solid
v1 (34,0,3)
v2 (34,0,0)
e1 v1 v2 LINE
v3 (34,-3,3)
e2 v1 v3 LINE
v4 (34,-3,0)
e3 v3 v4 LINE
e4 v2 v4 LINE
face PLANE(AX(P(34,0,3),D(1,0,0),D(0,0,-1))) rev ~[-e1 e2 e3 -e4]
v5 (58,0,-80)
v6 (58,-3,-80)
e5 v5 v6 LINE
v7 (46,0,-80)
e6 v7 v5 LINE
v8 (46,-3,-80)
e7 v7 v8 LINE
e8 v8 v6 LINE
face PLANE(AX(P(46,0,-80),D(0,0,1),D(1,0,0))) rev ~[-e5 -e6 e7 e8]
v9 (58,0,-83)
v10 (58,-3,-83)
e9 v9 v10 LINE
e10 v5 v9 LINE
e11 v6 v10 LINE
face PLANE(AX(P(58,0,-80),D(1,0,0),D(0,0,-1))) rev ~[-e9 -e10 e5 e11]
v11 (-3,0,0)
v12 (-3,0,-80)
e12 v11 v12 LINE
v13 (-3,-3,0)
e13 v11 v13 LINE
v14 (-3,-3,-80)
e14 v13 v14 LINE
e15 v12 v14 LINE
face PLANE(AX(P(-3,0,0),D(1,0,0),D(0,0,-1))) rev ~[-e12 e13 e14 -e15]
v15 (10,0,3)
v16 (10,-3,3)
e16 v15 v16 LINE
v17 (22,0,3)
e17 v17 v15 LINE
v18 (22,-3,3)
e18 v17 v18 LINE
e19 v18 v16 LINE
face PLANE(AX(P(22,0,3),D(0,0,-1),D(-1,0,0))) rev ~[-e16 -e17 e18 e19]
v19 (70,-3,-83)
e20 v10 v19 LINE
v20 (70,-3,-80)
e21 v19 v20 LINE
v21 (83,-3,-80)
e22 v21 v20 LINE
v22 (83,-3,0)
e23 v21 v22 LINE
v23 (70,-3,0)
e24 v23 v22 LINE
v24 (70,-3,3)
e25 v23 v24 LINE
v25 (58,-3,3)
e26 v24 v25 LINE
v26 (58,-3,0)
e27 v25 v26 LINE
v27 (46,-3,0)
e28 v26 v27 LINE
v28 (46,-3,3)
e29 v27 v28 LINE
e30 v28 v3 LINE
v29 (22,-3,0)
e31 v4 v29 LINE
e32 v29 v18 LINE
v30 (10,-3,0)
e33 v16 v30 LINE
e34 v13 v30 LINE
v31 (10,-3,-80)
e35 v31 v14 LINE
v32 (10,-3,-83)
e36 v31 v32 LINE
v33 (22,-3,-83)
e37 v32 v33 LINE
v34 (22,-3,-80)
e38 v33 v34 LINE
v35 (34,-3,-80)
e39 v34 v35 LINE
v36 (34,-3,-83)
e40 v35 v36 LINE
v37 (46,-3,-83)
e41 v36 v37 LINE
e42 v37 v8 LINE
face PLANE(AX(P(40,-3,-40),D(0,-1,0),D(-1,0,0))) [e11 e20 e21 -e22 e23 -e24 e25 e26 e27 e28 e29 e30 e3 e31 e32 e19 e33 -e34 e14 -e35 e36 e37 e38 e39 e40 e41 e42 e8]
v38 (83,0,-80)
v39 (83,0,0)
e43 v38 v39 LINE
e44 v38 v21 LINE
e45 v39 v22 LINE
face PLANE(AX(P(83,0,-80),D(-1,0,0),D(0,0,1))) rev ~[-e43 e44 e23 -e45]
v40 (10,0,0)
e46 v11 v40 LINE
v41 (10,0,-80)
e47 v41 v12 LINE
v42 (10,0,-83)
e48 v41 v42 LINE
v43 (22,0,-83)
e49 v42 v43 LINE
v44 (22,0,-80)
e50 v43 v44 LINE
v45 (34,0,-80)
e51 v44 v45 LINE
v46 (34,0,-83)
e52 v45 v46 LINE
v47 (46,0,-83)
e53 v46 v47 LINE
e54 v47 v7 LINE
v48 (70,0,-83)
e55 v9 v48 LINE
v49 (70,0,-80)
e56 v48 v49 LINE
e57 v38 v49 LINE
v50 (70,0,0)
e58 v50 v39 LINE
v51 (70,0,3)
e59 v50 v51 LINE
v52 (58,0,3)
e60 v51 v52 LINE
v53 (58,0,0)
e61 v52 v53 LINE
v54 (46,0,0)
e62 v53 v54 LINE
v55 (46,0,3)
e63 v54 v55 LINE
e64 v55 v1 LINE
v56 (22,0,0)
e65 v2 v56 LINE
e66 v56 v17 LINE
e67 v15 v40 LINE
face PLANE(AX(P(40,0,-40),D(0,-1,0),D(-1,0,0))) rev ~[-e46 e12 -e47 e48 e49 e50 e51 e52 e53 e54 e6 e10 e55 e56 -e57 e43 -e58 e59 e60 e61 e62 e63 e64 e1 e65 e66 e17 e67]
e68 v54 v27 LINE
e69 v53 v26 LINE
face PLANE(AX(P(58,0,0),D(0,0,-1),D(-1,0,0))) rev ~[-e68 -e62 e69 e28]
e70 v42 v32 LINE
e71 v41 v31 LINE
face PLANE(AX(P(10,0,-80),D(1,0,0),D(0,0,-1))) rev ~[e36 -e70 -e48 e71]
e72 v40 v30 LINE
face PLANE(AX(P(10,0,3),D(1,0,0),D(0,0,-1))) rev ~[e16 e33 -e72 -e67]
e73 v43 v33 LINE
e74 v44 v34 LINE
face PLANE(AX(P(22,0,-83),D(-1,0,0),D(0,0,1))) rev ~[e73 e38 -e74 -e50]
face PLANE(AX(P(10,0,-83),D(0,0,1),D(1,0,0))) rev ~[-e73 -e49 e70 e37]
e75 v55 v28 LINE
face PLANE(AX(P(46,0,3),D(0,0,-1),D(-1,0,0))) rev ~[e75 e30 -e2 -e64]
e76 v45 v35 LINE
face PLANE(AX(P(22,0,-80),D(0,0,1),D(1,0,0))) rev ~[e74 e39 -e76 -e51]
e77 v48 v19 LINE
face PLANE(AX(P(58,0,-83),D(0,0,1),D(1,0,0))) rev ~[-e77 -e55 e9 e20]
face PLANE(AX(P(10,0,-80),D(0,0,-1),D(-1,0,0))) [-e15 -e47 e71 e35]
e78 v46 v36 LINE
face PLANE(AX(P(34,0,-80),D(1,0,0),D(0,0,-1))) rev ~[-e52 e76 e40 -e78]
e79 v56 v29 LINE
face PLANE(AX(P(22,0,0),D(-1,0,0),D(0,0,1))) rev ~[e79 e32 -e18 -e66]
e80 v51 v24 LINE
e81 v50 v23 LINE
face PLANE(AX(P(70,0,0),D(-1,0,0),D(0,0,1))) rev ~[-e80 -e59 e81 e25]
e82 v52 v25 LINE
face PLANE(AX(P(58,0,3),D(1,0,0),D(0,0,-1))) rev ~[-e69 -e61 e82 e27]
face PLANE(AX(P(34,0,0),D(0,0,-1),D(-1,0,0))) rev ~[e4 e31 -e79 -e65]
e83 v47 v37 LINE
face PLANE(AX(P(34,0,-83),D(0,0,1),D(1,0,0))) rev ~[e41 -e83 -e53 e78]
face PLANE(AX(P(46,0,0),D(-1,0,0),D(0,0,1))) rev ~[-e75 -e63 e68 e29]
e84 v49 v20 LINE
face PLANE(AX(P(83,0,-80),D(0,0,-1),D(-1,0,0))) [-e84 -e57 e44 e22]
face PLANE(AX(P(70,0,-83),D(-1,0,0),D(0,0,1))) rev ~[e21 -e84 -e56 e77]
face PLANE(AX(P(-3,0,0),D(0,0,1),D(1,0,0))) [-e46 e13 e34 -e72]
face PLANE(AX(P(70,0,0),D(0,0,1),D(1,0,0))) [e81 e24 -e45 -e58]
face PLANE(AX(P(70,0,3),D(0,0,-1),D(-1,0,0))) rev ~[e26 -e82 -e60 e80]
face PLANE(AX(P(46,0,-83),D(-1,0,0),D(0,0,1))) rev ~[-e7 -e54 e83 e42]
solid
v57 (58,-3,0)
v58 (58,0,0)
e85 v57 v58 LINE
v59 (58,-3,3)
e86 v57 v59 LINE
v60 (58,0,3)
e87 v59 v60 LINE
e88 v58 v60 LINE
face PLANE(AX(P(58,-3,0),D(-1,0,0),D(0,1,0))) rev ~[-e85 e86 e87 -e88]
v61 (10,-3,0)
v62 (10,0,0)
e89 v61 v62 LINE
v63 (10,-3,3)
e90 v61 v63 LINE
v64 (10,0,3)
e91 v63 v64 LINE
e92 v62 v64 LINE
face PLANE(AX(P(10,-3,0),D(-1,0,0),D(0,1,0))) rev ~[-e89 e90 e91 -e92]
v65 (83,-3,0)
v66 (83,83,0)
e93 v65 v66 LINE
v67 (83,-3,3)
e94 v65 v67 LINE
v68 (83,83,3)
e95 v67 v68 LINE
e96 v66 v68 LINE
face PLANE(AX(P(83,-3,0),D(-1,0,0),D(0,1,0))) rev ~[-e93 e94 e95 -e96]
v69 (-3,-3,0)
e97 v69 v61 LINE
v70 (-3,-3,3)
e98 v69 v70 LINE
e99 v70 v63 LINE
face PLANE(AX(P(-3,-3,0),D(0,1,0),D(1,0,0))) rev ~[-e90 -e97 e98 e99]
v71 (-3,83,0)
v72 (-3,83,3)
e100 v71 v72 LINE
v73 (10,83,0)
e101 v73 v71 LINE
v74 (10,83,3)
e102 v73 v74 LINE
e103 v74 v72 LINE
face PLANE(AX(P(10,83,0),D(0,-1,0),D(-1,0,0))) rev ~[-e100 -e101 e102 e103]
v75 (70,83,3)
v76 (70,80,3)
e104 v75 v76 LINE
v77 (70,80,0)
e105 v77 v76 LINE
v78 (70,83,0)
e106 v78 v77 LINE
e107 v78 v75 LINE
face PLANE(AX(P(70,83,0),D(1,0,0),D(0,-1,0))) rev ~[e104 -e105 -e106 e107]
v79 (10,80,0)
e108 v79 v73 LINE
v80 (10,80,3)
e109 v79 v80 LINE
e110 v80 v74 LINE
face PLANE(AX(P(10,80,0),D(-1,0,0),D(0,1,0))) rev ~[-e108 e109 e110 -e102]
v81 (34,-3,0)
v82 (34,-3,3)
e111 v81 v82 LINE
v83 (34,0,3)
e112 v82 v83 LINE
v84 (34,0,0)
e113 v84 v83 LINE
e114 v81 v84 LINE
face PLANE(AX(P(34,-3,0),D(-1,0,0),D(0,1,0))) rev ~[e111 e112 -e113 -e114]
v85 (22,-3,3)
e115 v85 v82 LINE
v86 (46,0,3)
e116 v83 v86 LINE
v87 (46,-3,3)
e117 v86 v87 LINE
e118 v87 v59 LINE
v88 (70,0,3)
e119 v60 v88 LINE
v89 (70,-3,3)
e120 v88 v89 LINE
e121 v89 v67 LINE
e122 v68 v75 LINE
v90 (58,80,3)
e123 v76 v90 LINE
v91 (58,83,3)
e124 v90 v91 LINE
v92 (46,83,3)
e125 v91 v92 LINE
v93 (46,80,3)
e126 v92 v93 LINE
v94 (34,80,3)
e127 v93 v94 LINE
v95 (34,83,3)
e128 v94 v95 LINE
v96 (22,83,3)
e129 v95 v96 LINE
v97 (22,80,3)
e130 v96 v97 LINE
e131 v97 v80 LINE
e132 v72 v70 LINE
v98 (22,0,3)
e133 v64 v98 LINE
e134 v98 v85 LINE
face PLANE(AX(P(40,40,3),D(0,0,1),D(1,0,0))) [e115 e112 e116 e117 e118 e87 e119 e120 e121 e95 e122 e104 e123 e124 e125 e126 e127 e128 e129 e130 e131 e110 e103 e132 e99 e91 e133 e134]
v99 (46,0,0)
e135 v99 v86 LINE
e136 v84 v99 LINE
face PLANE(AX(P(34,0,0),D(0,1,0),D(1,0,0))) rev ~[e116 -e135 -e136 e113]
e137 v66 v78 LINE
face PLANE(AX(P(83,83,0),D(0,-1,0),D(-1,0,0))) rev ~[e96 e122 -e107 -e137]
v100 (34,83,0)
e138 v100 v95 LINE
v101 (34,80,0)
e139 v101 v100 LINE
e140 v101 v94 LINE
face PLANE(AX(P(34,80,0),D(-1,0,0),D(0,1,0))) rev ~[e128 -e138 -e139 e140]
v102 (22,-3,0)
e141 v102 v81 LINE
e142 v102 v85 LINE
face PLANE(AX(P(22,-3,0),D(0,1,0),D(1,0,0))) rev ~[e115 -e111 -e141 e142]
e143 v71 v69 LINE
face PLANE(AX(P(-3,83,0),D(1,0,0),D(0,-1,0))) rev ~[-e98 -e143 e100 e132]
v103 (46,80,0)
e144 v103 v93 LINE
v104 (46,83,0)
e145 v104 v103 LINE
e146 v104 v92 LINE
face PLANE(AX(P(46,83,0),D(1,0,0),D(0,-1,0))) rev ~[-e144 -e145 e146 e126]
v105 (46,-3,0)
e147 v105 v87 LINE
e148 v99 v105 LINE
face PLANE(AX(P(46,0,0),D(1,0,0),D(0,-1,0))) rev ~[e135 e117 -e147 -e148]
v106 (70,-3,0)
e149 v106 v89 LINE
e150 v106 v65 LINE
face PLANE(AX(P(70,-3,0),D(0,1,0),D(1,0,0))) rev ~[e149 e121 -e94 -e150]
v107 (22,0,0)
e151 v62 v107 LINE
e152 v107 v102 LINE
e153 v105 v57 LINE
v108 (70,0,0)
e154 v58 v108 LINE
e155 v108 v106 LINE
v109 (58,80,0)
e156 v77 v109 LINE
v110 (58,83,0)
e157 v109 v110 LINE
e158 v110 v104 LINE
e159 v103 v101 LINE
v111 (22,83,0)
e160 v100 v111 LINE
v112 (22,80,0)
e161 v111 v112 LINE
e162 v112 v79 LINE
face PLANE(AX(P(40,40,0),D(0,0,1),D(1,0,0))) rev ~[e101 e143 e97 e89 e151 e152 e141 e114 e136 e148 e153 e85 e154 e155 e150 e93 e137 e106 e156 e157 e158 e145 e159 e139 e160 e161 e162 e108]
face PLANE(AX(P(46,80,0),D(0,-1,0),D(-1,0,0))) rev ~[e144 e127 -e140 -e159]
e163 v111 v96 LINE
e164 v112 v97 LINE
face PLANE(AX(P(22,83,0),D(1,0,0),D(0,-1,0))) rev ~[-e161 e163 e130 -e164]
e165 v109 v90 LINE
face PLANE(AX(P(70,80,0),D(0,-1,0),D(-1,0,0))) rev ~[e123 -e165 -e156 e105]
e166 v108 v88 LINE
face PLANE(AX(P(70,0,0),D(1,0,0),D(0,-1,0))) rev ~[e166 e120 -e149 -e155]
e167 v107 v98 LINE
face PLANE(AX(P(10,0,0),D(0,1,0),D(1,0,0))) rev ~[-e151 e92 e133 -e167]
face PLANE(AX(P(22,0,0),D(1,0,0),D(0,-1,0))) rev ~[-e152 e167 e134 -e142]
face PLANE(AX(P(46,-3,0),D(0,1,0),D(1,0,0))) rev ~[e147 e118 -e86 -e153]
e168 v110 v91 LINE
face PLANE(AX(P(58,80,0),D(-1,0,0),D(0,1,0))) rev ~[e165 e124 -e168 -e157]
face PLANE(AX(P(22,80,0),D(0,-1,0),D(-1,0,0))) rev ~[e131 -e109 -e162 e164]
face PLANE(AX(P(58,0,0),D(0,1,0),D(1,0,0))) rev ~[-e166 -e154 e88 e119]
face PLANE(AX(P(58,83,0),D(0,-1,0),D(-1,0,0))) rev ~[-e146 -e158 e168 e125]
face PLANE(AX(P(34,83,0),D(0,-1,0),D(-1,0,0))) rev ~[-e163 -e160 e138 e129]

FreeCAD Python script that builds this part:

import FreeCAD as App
import Part
import Sketcher
from FreeCAD import Vector
Q = App.Units.Quantity

doc = App.newDocument("Part")
body = doc.addObject("PartDesign::Body", "Body")

sketch1 = body.newObject("Sketcher::SketchObject", "Sketch")
sketch1.AttachmentSupport = (doc.getObject("XY_Plane"), [""])
sketch1.MapMode = "FlatFace"
sketch1.addGeometry([
    Part.LineSegment(Vector(10, 0, 0), Vector(22, 0, 0)),
    Part.LineSegment(Vector(22, 0, 0), Vector(22, -3, 0)),
    Part.LineSegment(Vector(22, -3, 0), Vector(34, -3, 0)),
    Part.LineSegment(Vector(34, -3, 0), Vector(34, 0, 0)),
    Part.LineSegment(Vector(34, 0, 0), Vector(46, 0, 0)),
    Part.LineSegment(Vector(46, 0, 0), Vector(46, -3, 0)),
    Part.LineSegment(Vector(46, -3, 0), Vector(58, -3, 0)),
    Part.LineSegment(Vector(58, -3, 0), Vector(58, 0, 0)),
    Part.LineSegment(Vector(58, 0, 0), Vector(70, 0, 0)),
    Part.LineSegment(Vector(70, 0, 0), Vector(70, -3, 0)),
    Part.LineSegment(Vector(70, -3, 0), Vector(83, -3, 0)),
    Part.LineSegment(Vector(83, -3, 0), Vector(83, 83, 0)),
    Part.LineSegment(Vector(83, 83, 0), Vector(70, 83, 0)),
    Part.LineSegment(Vector(70, 83, 0), Vector(70, 80, 0)),
    Part.LineSegment(Vector(70, 80, 0), Vector(58, 80, 0)),
    Part.LineSegment(Vector(58, 80, 0), Vector(58, 83, 0)),
    Part.LineSegment(Vector(58, 83, 0), Vector(46, 83, 0)),
    Part.LineSegment(Vector(46, 83, 0), Vector(46, 80, 0)),
    Part.LineSegment(Vector(46, 80, 0), Vector(34, 80, 0)),
    Part.LineSegment(Vector(34, 80, 0), Vector(34, 83, 0)),
    Part.LineSegment(Vector(34, 83, 0), Vector(22, 83, 0)),
    Part.LineSegment(Vector(22, 83, 0), Vector(22, 80, 0)),
    Part.LineSegment(Vector(22, 80, 0), Vector(10, 80, 0)),
    Part.LineSegment(Vector(10, 80, 0), Vector(10, 83, 0)),
    Part.LineSegment(Vector(10, 83, 0), Vector(-3, 83, 0)),
    Part.LineSegment(Vector(-3, 83, 0), Vector(-3, -3, 0)),
    Part.LineSegment(Vector(-3, -3, 0), Vector(10, -3, 0)),
    Part.LineSegment(Vector(10, -3, 0), Vector(10, 0, 0)),
], False)
sketch1.addConstraint([
    Sketcher.Constraint("Coincident", 0, 2, 1, 1),
    Sketcher.Constraint("Coincident", 1, 2, 2, 1),
    Sketcher.Constraint("Coincident", 2, 2, 3, 1),
    Sketcher.Constraint("Coincident", 3, 2, 4, 1),
    Sketcher.Constraint("Coincident", 4, 2, 5, 1),
    Sketcher.Constraint("Coincident", 5, 2, 6, 1),
    Sketcher.Constraint("Coincident", 6, 2, 7, 1),
    Sketcher.Constraint("Coincident", 7, 2, 8, 1),
    Sketcher.Constraint("Coincident", 8, 2, 9, 1),
    Sketcher.Constraint("Coincident", 9, 2, 10, 1),
    Sketcher.Constraint("Coincident", 10, 2, 11, 1),
    Sketcher.Constraint("Coincident", 11, 2, 12, 1),
    Sketcher.Constraint("Coincident", 12, 2, 13, 1),
    Sketcher.Constraint("Coincident", 13, 2, 14, 1),
    Sketcher.Constraint("Coincident", 14, 2, 15, 1),
    Sketcher.Constraint("Coincident", 15, 2, 16, 1),
    Sketcher.Constraint("Coincident", 16, 2, 17, 1),
    Sketcher.Constraint("Coincident", 17, 2, 18, 1),
    Sketcher.Constraint("Coincident", 18, 2, 19, 1),
    Sketcher.Constraint("Coincident", 19, 2, 20, 1),
    Sketcher.Constraint("Coincident", 20, 2, 21, 1),
    Sketcher.Constraint("Coincident", 21, 2, 22, 1),
    Sketcher.Constraint("Coincident", 22, 2, 23, 1),
    Sketcher.Constraint("Coincident", 23, 2, 24, 1),
    Sketcher.Constraint("Coincident", 24, 2, 25, 1),
    Sketcher.Constraint("Coincident", 25, 2, 26, 1),
    Sketcher.Constraint("Coincident", 26, 2, 27, 1),
    Sketcher.Constraint("Coincident", 27, 2, 0, 1),
    Sketcher.Constraint("Horizontal", 0),
    Sketcher.Constraint("Vertical", 1),
    Sketcher.Constraint("Horizontal", 2),
    Sketcher.Constraint("Vertical", 3),
    Sketcher.Constraint("Horizontal", 4),
    Sketcher.Constraint("Vertical", 5),
    Sketcher.Constraint("Horizontal", 6),
    Sketcher.Constraint("Vertical", 7),
    Sketcher.Constraint("Horizontal", 8),
    Sketcher.Constraint("Vertical", 9),
    Sketcher.Constraint("Horizontal", 10),
    Sketcher.Constraint("Vertical", 11),
    Sketcher.Constraint("Horizontal", 12),
    Sketcher.Constraint("Vertical", 13),
    Sketcher.Constraint("Horizontal", 14),
    Sketcher.Constraint("Vertical", 15),
    Sketcher.Constraint("Horizontal", 16),
    Sketcher.Constraint("Vertical", 17),
    Sketcher.Constraint("Horizontal", 18),
    Sketcher.Constraint("Vertical", 19),
    Sketcher.Constraint("Horizontal", 20),
    Sketcher.Constraint("Vertical", 21),
    Sketcher.Constraint("Horizontal", 22),
    Sketcher.Constraint("Vertical", 23),
    Sketcher.Constraint("Horizontal", 24),
    Sketcher.Constraint("Vertical", 25),
    Sketcher.Constraint("Horizontal", 26),
    Sketcher.Constraint("Vertical", 27),
    Sketcher.Constraint("PointOnObject", 0, 2, -1),
    Sketcher.Constraint("PointOnObject", 3, 2, -1),
    Sketcher.Constraint("PointOnObject", 7, 2, -1),
    Sketcher.Constraint("Horizontal", 2, 2, 5, 2),
    Sketcher.Constraint("Horizontal", 6, 2, 9, 2),
    Sketcher.Constraint("Horizontal", 12, 2, 15, 2),
    Sketcher.Constraint("Horizontal", 14, 2, 17, 2),
    Sketcher.Constraint("Horizontal", 16, 2, 19, 2),
    Sketcher.Constraint("Horizontal", 18, 2, 21, 2),
    Sketcher.Constraint("Horizontal", 20, 2, 23, 2),
    Sketcher.Constraint("Horizontal", 10, 2, 25, 2),
    Sketcher.Constraint("Vertical", 9, 2, 12, 2),
    Sketcher.Constraint("Vertical", 7, 2, 14, 2),
    Sketcher.Constraint("Vertical", 5, 2, 16, 2),
    Sketcher.Constraint("Vertical", 3, 2, 18, 2),
    Sketcher.Constraint("Vertical", 1, 2, 20, 2),
    Sketcher.Constraint("Vertical", 23, 2, 26, 2),
    Sketcher.Constraint("Equal", 0, 2),
    Sketcher.Constraint("Equal", 2, 4),
    Sketcher.Constraint("Equal", 4, 6),
    Sketcher.Constraint("Equal", 6, 8),
    Sketcher.Constraint("Equal", 12, 24),
    Sketcher.Constraint("Equal", 9, 13),
    Sketcher.Constraint("DistanceX", 0, 1, 0, 2, Q("12 mm")),
    Sketcher.Constraint("DistanceX", 10, 1, 10, 2, Q("13 mm")),
    Sketcher.Constraint("DistanceY", 1, 2, 1, 1, Q("3 mm")),
    Sketcher.Constraint("DistanceY", 11, 1, 11, 2, Q("86 mm")),
    Sketcher.Constraint("DistanceX", -1, 1, 0, 2, Q("22 mm")),
])
pad1 = body.newObject("PartDesign::Pad", "Pad")
pad1.Profile = sketch1
pad1.Length = 3
body2 = doc.addObject("PartDesign::Body", "Body001")

sketch2 = body2.newObject("Sketcher::SketchObject", "Sketch001")
sketch2.AttachmentSupport = (doc.getObject("XZ_Plane001"), [""])
sketch2.MapMode = "FlatFace"
sketch2.addGeometry([
    Part.LineSegment(Vector(-3, -80, 0), Vector(-3, 0, 0)),
    Part.LineSegment(Vector(-3, 0, 0), Vector(10, 0, 0)),
    Part.LineSegment(Vector(10, 0, 0), Vector(10, 3, 0)),
    Part.LineSegment(Vector(10, 3, 0), Vector(22, 3, 0)),
    Part.LineSegment(Vector(22, 3, 0), Vector(22, 0, 0)),
    Part.LineSegment(Vector(22, 0, 0), Vector(34, 0, 0)),
    Part.LineSegment(Vector(34, 0, 0), Vector(34, 3, 0)),
    Part.LineSegment(Vector(34, 3, 0), Vector(46, 3, 0)),
    Part.LineSegment(Vector(46, 3, 0), Vector(46, 0, 0)),
    Part.LineSegment(Vector(46, 0, 0), Vector(58, 0, 0)),
    Part.LineSegment(Vector(58, 0, 0), Vector(58, 3, 0)),
    Part.LineSegment(Vector(58, 3, 0), Vector(70, 3, 0)),
    Part.LineSegment(Vector(70, 3, 0), Vector(70, 0, 0)),
    Part.LineSegment(Vector(70, 0, 0), Vector(83, 0, 0)),
    Part.LineSegment(Vector(83, 0, 0), Vector(83, -80, 0)),
    Part.LineSegment(Vector(83, -80, 0), Vector(70, -80, 0)),
    Part.LineSegment(Vector(70, -80, 0), Vector(70, -83, 0)),
    Part.LineSegment(Vector(70, -83, 0), Vector(58, -83, 0)),
    Part.LineSegment(Vector(58, -83, 0), Vector(58, -80, 0)),
    Part.LineSegment(Vector(58, -80, 0), Vector(46, -80, 0)),
    Part.LineSegment(Vector(46, -80, 0), Vector(46, -83, 0)),
    Part.LineSegment(Vector(46, -83, 0), Vector(34, -83, 0)),
    Part.LineSegment(Vector(34, -83, 0), Vector(34, -80, 0)),
    Part.LineSegment(Vector(34, -80, 0), Vector(22, -80, 0)),
    Part.LineSegment(Vector(22, -80, 0), Vector(22, -83, 0)),
    Part.LineSegment(Vector(22, -83, 0), Vector(10, -83, 0)),
    Part.LineSegment(Vector(10, -83, 0), Vector(10, -80, 0)),
    Part.LineSegment(Vector(10, -80, 0), Vector(-3, -80, 0)),
], False)
sketch2.addConstraint([
    Sketcher.Constraint("Coincident", 0, 2, 1, 1),
    Sketcher.Constraint("Coincident", 1, 2, 2, 1),
    Sketcher.Constraint("Coincident", 2, 2, 3, 1),
    Sketcher.Constraint("Coincident", 3, 2, 4, 1),
    Sketcher.Constraint("Coincident", 4, 2, 5, 1),
    Sketcher.Constraint("Coincident", 5, 2, 6, 1),
    Sketcher.Constraint("Coincident", 6, 2, 7, 1),
    Sketcher.Constraint("Coincident", 7, 2, 8, 1),
    Sketcher.Constraint("Coincident", 8, 2, 9, 1),
    Sketcher.Constraint("Coincident", 9, 2, 10, 1),
    Sketcher.Constraint("Coincident", 10, 2, 11, 1),
    Sketcher.Constraint("Coincident", 11, 2, 12, 1),
    Sketcher.Constraint("Coincident", 12, 2, 13, 1),
    Sketcher.Constraint("Coincident", 13, 2, 14, 1),
    Sketcher.Constraint("Coincident", 14, 2, 15, 1),
    Sketcher.Constraint("Coincident", 15, 2, 16, 1),
    Sketcher.Constraint("Coincident", 16, 2, 17, 1),
    Sketcher.Constraint("Coincident", 17, 2, 18, 1),
    Sketcher.Constraint("Coincident", 18, 2, 19, 1),
    Sketcher.Constraint("Coincident", 19, 2, 20, 1),
    Sketcher.Constraint("Coincident", 20, 2, 21, 1),
    Sketcher.Constraint("Coincident", 21, 2, 22, 1),
    Sketcher.Constraint("Coincident", 22, 2, 23, 1),
    Sketcher.Constraint("Coincident", 23, 2, 24, 1),
    Sketcher.Constraint("Coincident", 24, 2, 25, 1),
    Sketcher.Constraint("Coincident", 25, 2, 26, 1),
    Sketcher.Constraint("Coincident", 26, 2, 27, 1),
    Sketcher.Constraint("Coincident", 27, 2, 0, 1),
    Sketcher.Constraint("Vertical", 0),
    Sketcher.Constraint("Horizontal", 1),
    Sketcher.Constraint("Vertical", 2),
    Sketcher.Constraint("Horizontal", 3),
    Sketcher.Constraint("Vertical", 4),
    Sketcher.Constraint("Horizontal", 5),
    Sketcher.Constraint("Vertical", 6),
    Sketcher.Constraint("Horizontal", 7),
    Sketcher.Constraint("Vertical", 8),
    Sketcher.Constraint("Horizontal", 9),
    Sketcher.Constraint("Vertical", 10),
    Sketcher.Constraint("Horizontal", 11),
    Sketcher.Constraint("Vertical", 12),
    Sketcher.Constraint("Horizontal", 13),
    Sketcher.Constraint("Vertical", 14),
    Sketcher.Constraint("Horizontal", 15),
    Sketcher.Constraint("Vertical", 16),
    Sketcher.Constraint("Horizontal", 17),
    Sketcher.Constraint("Vertical", 18),
    Sketcher.Constraint("Horizontal", 19),
    Sketcher.Constraint("Vertical", 20),
    Sketcher.Constraint("Horizontal", 21),
    Sketcher.Constraint("Vertical", 22),
    Sketcher.Constraint("Horizontal", 23),
    Sketcher.Constraint("Vertical", 24),
    Sketcher.Constraint("Horizontal", 25),
    Sketcher.Constraint("Vertical", 26),
    Sketcher.Constraint("Horizontal", 27),
    Sketcher.Constraint("PointOnObject", 0, 2, -1),
    Sketcher.Constraint("PointOnObject", 4, 2, -1),
    Sketcher.Constraint("PointOnObject", 8, 2, -1),
    Sketcher.Constraint("PointOnObject", 12, 2, -1),
    Sketcher.Constraint("Horizontal", 3, 2, 6, 2),
    Sketcher.Constraint("Horizontal", 7, 2, 10, 2),
    Sketcher.Constraint("Horizontal", 15, 2, 18, 2),
    Sketcher.Constraint("Horizontal", 17, 2, 20, 2),
    Sketcher.Constraint("Horizontal", 19, 2, 22, 2),
    Sketcher.Constraint("Horizontal", 21, 2, 24, 2),
    Sketcher.Constraint("Horizontal", 23, 2, 26, 2),
    Sketcher.Constraint("Vertical", 12, 2, 15, 2),
    Sketcher.Constraint("Vertical", 10, 2, 17, 2),
    Sketcher.Constraint("Vertical", 8, 2, 19, 2),
    Sketcher.Constraint("Vertical", 6, 2, 21, 2),
    Sketcher.Constraint("Vertical", 4, 2, 23, 2),
    Sketcher.Constraint("Vertical", 2, 2, 25, 2),
    Sketcher.Constraint("Equal", 3, 5),
    Sketcher.Constraint("Equal", 5, 7),
    Sketcher.Constraint("Equal", 7, 9),
    Sketcher.Constraint("Equal", 9, 11),
    Sketcher.Constraint("Equal", 1, 13),
    Sketcher.Constraint("Equal", 12, 16),
    Sketcher.Constraint("DistanceX", 1, 1, 1, 2, Q("13 mm")),
    Sketcher.Constraint("DistanceX", 3, 1, 3, 2, Q("12 mm")),
    Sketcher.Constraint("DistanceY", 0, 1, 0, 2, Q("80 mm")),
    Sketcher.Constraint("DistanceY", 2, 1, 2, 2, Q("3 mm")),
    Sketcher.Constraint("DistanceX", 0, 2, -1, 1, Q("3 mm")),
])
pad2 = body2.newObject("PartDesign::Pad", "Pad001")
pad2.Profile = sketch2
pad2.Length = 3

doc.recompute()
